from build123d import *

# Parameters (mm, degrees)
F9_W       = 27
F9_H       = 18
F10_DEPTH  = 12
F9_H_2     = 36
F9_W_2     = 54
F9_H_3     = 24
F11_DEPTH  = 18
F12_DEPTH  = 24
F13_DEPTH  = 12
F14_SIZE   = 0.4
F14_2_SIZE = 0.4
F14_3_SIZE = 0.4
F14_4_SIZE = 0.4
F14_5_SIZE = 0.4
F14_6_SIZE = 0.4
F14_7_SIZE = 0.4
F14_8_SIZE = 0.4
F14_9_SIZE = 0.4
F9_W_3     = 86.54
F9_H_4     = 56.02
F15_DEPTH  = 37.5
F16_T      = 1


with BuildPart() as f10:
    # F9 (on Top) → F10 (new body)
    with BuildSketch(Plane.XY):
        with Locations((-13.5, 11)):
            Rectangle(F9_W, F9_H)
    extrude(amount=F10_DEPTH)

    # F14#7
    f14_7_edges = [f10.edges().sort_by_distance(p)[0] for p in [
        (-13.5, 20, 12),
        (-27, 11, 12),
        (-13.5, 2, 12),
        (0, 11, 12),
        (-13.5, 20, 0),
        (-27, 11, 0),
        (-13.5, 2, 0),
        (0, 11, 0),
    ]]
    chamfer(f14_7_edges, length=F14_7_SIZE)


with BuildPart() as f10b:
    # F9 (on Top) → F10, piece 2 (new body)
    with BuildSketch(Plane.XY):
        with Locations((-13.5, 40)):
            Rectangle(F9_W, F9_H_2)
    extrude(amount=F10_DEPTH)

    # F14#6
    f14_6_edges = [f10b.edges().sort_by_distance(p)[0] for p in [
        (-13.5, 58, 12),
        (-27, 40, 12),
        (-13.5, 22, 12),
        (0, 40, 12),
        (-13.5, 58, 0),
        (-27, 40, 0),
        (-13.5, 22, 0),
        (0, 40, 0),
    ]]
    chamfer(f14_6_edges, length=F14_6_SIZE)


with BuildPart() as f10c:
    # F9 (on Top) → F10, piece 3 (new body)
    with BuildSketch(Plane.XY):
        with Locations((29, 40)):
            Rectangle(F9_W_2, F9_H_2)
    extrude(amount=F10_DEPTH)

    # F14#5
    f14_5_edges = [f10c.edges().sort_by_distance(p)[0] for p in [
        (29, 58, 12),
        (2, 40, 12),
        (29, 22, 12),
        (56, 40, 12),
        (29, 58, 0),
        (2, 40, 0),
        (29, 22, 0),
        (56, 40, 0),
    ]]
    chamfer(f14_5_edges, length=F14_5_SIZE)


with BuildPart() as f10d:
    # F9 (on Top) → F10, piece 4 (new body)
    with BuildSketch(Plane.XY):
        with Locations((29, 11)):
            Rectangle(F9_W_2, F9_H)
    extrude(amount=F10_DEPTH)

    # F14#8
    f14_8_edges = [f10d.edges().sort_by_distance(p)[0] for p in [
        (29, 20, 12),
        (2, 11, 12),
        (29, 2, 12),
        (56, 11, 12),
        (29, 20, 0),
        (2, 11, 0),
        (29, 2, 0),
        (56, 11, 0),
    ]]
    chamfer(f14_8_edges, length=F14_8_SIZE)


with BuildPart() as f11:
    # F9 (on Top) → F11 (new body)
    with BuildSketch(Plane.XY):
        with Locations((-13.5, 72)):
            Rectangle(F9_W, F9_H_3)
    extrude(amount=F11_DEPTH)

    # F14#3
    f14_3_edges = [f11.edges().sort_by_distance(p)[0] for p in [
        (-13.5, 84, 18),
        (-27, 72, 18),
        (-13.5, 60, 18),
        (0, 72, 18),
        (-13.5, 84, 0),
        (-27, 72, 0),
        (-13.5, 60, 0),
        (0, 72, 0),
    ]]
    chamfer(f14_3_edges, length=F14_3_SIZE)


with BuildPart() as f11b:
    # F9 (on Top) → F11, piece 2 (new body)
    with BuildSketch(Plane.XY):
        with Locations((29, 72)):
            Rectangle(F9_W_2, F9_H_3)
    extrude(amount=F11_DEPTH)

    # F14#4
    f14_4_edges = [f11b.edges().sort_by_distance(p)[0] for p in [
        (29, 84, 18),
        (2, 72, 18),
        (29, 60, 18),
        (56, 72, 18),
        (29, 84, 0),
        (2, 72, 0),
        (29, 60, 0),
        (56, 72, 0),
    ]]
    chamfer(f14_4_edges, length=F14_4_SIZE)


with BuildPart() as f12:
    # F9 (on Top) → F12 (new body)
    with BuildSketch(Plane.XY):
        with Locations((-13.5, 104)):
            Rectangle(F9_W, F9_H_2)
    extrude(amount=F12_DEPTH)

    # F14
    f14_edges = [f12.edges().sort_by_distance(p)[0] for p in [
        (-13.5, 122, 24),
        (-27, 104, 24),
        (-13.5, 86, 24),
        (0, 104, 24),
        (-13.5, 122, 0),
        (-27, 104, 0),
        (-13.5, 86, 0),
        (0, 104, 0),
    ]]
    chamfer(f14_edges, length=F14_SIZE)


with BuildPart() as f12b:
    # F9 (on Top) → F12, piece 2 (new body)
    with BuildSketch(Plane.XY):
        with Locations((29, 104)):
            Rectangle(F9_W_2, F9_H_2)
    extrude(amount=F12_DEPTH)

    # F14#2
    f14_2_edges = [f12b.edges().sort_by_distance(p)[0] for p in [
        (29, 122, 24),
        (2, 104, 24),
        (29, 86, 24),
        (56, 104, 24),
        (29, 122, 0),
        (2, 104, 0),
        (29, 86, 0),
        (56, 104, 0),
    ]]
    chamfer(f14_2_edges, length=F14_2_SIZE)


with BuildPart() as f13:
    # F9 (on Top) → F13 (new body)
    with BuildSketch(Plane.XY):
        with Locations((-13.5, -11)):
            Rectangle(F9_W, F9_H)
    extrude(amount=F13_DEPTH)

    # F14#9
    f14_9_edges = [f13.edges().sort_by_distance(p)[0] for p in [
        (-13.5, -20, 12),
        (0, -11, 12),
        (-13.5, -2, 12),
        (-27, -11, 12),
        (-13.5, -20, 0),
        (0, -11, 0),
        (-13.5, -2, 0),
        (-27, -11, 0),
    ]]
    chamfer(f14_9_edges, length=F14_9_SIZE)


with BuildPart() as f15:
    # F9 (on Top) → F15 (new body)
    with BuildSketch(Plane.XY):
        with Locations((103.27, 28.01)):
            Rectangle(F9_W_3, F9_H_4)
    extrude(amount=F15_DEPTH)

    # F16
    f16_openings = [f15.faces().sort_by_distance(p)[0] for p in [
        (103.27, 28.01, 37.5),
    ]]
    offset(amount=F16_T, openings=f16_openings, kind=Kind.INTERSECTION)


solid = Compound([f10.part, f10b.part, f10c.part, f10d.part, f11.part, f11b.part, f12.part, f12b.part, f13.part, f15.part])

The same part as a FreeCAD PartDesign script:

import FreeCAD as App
import Part
import Sketcher
from FreeCAD import Vector
Q = App.Units.Quantity


def edges_at(feature, points):
    """Names of the edges that pass closest to the given points."""
    edges = feature.Shape.Edges
    near = lambda p: min(range(len(edges)), key=lambda i: edges[i].distToShape(Part.Vertex(*p))[0])
    return sorted({f"Edge{near(p) + 1}" for p in points})


def faces_at(feature, points):
    """Names of the faces that lie closest to the given points."""
    faces = feature.Shape.Faces
    near = lambda p: min(range(len(faces)), key=lambda i: faces[i].distToShape(Part.Vertex(*p))[0])
    return sorted({f"Face{near(p) + 1}" for p in points})


def add_polygon(sketch, points):
    """Adds a closed chain of lines whose ends are joined by coincident constraints."""
    first, n = sketch.GeometryCount, len(points)
    for a, b in zip(points, points[1:] + points[:1]):
        sketch.addGeometry(Part.LineSegment(App.Vector(*a, 0), App.Vector(*b, 0)), False)
    for i in range(n):
        sketch.addConstraint(Sketcher.Constraint("Coincident", first + i, 2, first + (i + 1) % n, 1))

doc = App.newDocument("Part")
body = doc.addObject("PartDesign::Body", "Body")

# Sketch on XY plane
sketch1 = body.newObject("Sketcher::SketchObject", "Sketch")
sketch1.AttachmentSupport = (doc.getObject("XY_Plane"), [""])
sketch1.MapMode = "FlatFace"
add_polygon(sketch1, [(-27, 20), (-27, 2), (0, 2), (0, 20)])  # lines 0-3
sketch1.addConstraint([
    Sketcher.Constraint("Vertical", 0),
    Sketcher.Constraint("Horizontal", 1),
    Sketcher.Constraint("Vertical", 2),
    Sketcher.Constraint("Horizontal", 3),
    Sketcher.Constraint("PointOnObject", 1, 2, -2),
    Sketcher.Constraint("DistanceX", 1, 1, 1, 2, Q("27 mm")),
    Sketcher.Constraint("DistanceY", 0, 2, 0, 1, Q("18 mm")),
    Sketcher.Constraint("DistanceY", -1, 1, 0, 2, Q("2 mm")),
])
pad1 = body.newObject("PartDesign::Pad", "Pad")
pad1.Profile = sketch1
pad1.Length = 12
doc.recompute()

chamfer = body.newObject("PartDesign::Chamfer", "Chamfer")
chamfer.Base = (pad1, edges_at(pad1, [
    (-13.5, 20, 12),
    (-27, 11, 12),
    (-13.5, 2, 12),
    (0, 11, 12),
    (-13.5, 20, 0),
    (-27, 11, 0),
    (-13.5, 2, 0),
    (0, 11, 0),
]))
chamfer.Size = 0.4
body2 = doc.addObject("PartDesign::Body", "Body001")

# Sketch on XY plane
sketch2 = body2.newObject("Sketcher::SketchObject", "Sketch001")
sketch2.AttachmentSupport = (doc.getObject("XY_Plane001"), [""])
sketch2.MapMode = "FlatFace"
add_polygon(sketch2, [(-27, 58), (-27, 22), (0, 22), (0, 58)])  # lines 0-3
sketch2.addConstraint([
    Sketcher.Constraint("Vertical", 0),
    Sketcher.Constraint("Horizontal", 1),
    Sketcher.Constraint("Vertical", 2),
    Sketcher.Constraint("Horizontal", 3),
    Sketcher.Constraint("PointOnObject", 1, 2, -2),
    Sketcher.Constraint("DistanceX", 1, 1, 1, 2, Q("27 mm")),
    Sketcher.Constraint("DistanceY", 0, 2, 0, 1, Q("36 mm")),
    Sketcher.Constraint("DistanceY", -1, 1, 0, 2, Q("22 mm")),
])
pad2 = body2.newObject("PartDesign::Pad", "Pad001")
pad2.Profile = sketch2
pad2.Length = 12
doc.recompute()

chamfer2 = body2.newObject("PartDesign::Chamfer", "Chamfer001")
chamfer2.Base = (pad2, edges_at(pad2, [
    (-13.5, 58, 12),
    (-27, 40, 12),
    (-13.5, 22, 12),
    (0, 40, 12),
    (-13.5, 58, 0),
    (-27, 40, 0),
    (-13.5, 22, 0),
    (0, 40, 0),
]))
chamfer2.Size = 0.4
body3 = doc.addObject("PartDesign::Body", "Body002")

# Sketch on XY plane
sketch3 = body3.newObject("Sketcher::SketchObject", "Sketch002")
sketch3.AttachmentSupport = (doc.getObject("XY_Plane002"), [""])
sketch3.MapMode = "FlatFace"
add_polygon(sketch3, [(2, 58), (2, 22), (56, 22), (56, 58)])  # lines 0-3
sketch3.addConstraint([
    Sketcher.Constraint("Vertical", 0),
    Sketcher.Constraint("Horizontal", 1),
    Sketcher.Constraint("Vertical", 2),
    Sketcher.Constraint("Horizontal", 3),
    Sketcher.Constraint("DistanceX", 1, 1, 1, 2, Q("54 mm")),
    Sketcher.Constraint("DistanceY", 0, 2, 0, 1, Q("36 mm")),
    Sketcher.Constraint("DistanceX", -1, 1, 0, 2, Q("2 mm")),
    Sketcher.Constraint("DistanceY", -1, 1, 0, 2, Q("22 mm")),
])
pad3 = body3.newObject("PartDesign::Pad", "Pad002")
pad3.Profile = sketch3
pad3.Length = 12
doc.recompute()

chamfer3 = body3.newObject("PartDesign::Chamfer", "Chamfer002")
chamfer3.Base = (pad3, edges_at(pad3, [
    (29, 58, 12),
    (2, 40, 12),
    (29, 22, 12),
    (56, 40, 12),
    (29, 58, 0),
    (2, 40, 0),
    (29, 22, 0),
    (56, 40, 0),
]))
chamfer3.Size = 0.4
body4 = doc.addObject("PartDesign::Body", "Body003")

# Sketch on XY plane
sketch4 = body4.newObject("Sketcher::SketchObject", "Sketch003")
sketch4.AttachmentSupport = (doc.getObject("XY_Plane003"), [""])
sketch4.MapMode = "FlatFace"
add_polygon(sketch4, [(2, 20), (2, 2), (56, 2), (56, 20)])  # lines 0-3
sketch4.addConstraint([
    Sketcher.Constraint("Vertical", 0),
    Sketcher.Constraint("Horizontal", 1),
    Sketcher.Constraint("Vertical", 2),
    Sketcher.Constraint("Horizontal", 3),
    Sketcher.Constraint("DistanceX", 1, 1, 1, 2, Q("54 mm")),
    Sketcher.Constraint("DistanceY", 0, 2, 0, 1, Q("18 mm")),
    Sketcher.Constraint("DistanceX", -1, 1, 0, 2, Q("2 mm")),
    Sketcher.Constraint("DistanceY", -1, 1, 0, 2, Q("2 mm")),
])
pad4 = body4.newObject("PartDesign::Pad", "Pad003")
pad4.Profile = sketch4
pad4.Length = 12
doc.recompute()

chamfer4 = body4.newObject("PartDesign::Chamfer", "Chamfer003")
chamfer4.Base = (pad4, edges_at(pad4, [
    (29, 20, 12),
    (2, 11, 12),
    (29, 2, 12),
    (56, 11, 12),
    (29, 20, 0),
    (2, 11, 0),
    (29, 2, 0),
    (56, 11, 0),
]))
chamfer4.Size = 0.4
body5 = doc.addObject("PartDesign::Body", "Body004")

# Sketch on XY plane
sketch5 = body5.newObject("Sketcher::SketchObject", "Sketch004")
sketch5.AttachmentSupport = (doc.getObject("XY_Plane004"), [""])
sketch5.MapMode = "FlatFace"
add_polygon(sketch5, [(-27, 84), (-27, 60), (0, 60), (0, 84)])  # lines 0-3
sketch5.addConstraint([
    Sketcher.Constraint("Vertical", 0),
    Sketcher.Constraint("Horizontal", 1),
    Sketcher.Constraint("Vertical", 2),
    Sketcher.Constraint("Horizontal", 3),
    Sketcher.Constraint("PointOnObject", 1, 2, -2),
    Sketcher.Constraint("DistanceX", 1, 1, 1, 2, Q("27 mm")),
    Sketcher.Constraint("DistanceY", 0, 2, 0, 1, Q("24 mm")),
    Sketcher.Constraint("DistanceY", -1, 1, 0, 2, Q("60 mm")),
])
pad5 = body5.newObject("PartDesign::Pad", "Pad004")
pad5.Profile = sketch5
pad5.Length = 18
doc.recompute()

chamfer5 = body5.newObject("PartDesign::Chamfer", "Chamfer004")
chamfer5.Base = (pad5, edges_at(pad5, [
    (-13.5, 84, 18),
    (-27, 72, 18),
    (-13.5, 60, 18),
    (0, 72, 18),
    (-13.5, 84, 0),
    (-27, 72, 0),
    (-13.5, 60, 0),
    (0, 72, 0),
]))
chamfer5.Size = 0.4
body6 = doc.addObject("PartDesign::Body", "Body005")

# Sketch on XY plane
sketch6 = body6.newObject("Sketcher::SketchObject", "Sketch005")
sketch6.AttachmentSupport = (doc.getObject("XY_Plane005"), [""])
sketch6.MapMode = "FlatFace"
add_polygon(sketch6, [(2, 84), (2, 60), (56, 60), (56, 84)])  # lines 0-3
sketch6.addConstraint([
    Sketcher.Constraint("Vertical", 0),
    Sketcher.Constraint("Horizontal", 1),
    Sketcher.Constraint("Vertical", 2),
    Sketcher.Constraint("Horizontal", 3),
    Sketcher.Constraint("DistanceX", 1, 1, 1, 2, Q("54 mm")),
    Sketcher.Constraint("DistanceY", 0, 2, 0, 1, Q("24 mm")),
    Sketcher.Constraint("DistanceX", -1, 1, 0, 2, Q("2 mm")),
    Sketcher.Constraint("DistanceY", -1, 1, 0, 2, Q("60 mm")),
])
pad6 = body6.newObject("PartDesign::Pad", "Pad005")
pad6.Profile = sketch6
pad6.Length = 18
doc.recompute()

chamfer6 = body6.newObject("PartDesign::Chamfer", "Chamfer005")
chamfer6.Base = (pad6, edges_at(pad6, [
    (29, 84, 18),
    (2, 72, 18),
    (29, 60, 18),
    (56, 72, 18),
    (29, 84, 0),
    (2, 72, 0),
    (29, 60, 0),
    (56, 72, 0),
]))
chamfer6.Size = 0.4
body7 = doc.addObject("PartDesign::Body", "Body006")

# Sketch on XY plane
sketch7 = body7.newObject("Sketcher::SketchObject", "Sketch006")
sketch7.AttachmentSupport = (doc.getObject("XY_Plane006"), [""])
sketch7.MapMode = "FlatFace"
add_polygon(sketch7, [(-27, 122), (-27, 86), (0, 86), (0, 122)])  # lines 0-3
sketch7.addConstraint([
    Sketcher.Constraint("Vertical", 0),
    Sketcher.Constraint("Horizontal", 1),
    Sketcher.Constraint("Vertical", 2),
    Sketcher.Constraint("Horizontal", 3),
    Sketcher.Constraint("PointOnObject", 1, 2, -2),
    Sketcher.Constraint("DistanceX", 1, 1, 1, 2, Q("27 mm")),
    Sketcher.Constraint("DistanceY", 0, 2, 0, 1, Q("36 mm")),
    Sketcher.Constraint("DistanceY", -1, 1, 0, 2, Q("86 mm")),
])
pad7 = body7.newObject("PartDesign::Pad", "Pad006")
pad7.Profile = sketch7
pad7.Length = 24
doc.recompute()

chamfer7 = body7.newObject("PartDesign::Chamfer", "Chamfer006")
chamfer7.Base = (pad7, edges_at(pad7, [
    (-13.5, 122, 24),
    (-27, 104, 24),
    (-13.5, 86, 24),
    (0, 104, 24),
    (-13.5, 122, 0),
    (-27, 104, 0),
    (-13.5, 86, 0),
    (0, 104, 0),
]))
chamfer7.Size = 0.4
body8 = doc.addObject("PartDesign::Body", "Body007")

# Sketch on XY plane
sketch8 = body8.newObject("Sketcher::SketchObject", "Sketch007")
sketch8.AttachmentSupport = (doc.getObject("XY_Plane007"), [""])
sketch8.MapMode = "FlatFace"
add_polygon(sketch8, [(2, 122), (2, 86), (56, 86), (56, 122)])  # lines 0-3
sketch8.addConstraint([
    Sketcher.Constraint("Vertical", 0),
    Sketcher.Constraint("Horizontal", 1),
    Sketcher.Constraint("Vertical", 2),
    Sketcher.Constraint("Horizontal", 3),
    Sketcher.Constraint("DistanceX", 1, 1, 1, 2, Q("54 mm")),
    Sketcher.Constraint("DistanceY", 0, 2, 0, 1, Q("36 mm")),
    Sketcher.Constraint("DistanceX", -1, 1, 0, 2, Q("2 mm")),
    Sketcher.Constraint("DistanceY", -1, 1, 0, 2, Q("86 mm")),
])
pad8 = body8.newObject("PartDesign::Pad", "Pad007")
pad8.Profile = sketch8
pad8.Length = 24
doc.recompute()

chamfer8 = body8.newObject("PartDesign::Chamfer", "Chamfer007")
chamfer8.Base = (pad8, edges_at(pad8, [
    (29, 122, 24),
    (2, 104, 24),
    (29, 86, 24),
    (56, 104, 24),
    (29, 122, 0),
    (2, 104, 0),
    (29, 86, 0),
    (56, 104, 0),
]))
chamfer8.Size = 0.4
body9 = doc.addObject("PartDesign::Body", "Body008")

# Sketch on XY plane
sketch9 = body9.newObject("Sketcher::SketchObject", "Sketch008")
sketch9.AttachmentSupport = (doc.getObject("XY_Plane008"), [""])
sketch9.MapMode = "FlatFace"
add_polygon(sketch9, [(-27, -2), (-27, -20), (0, -20), (0, -2)])  # lines 0-3
sketch9.addConstraint([
    Sketcher.Constraint("Vertical", 0),
    Sketcher.Constraint("Horizontal", 1),
    Sketcher.Constraint("Vertical", 2),
    Sketcher.Constraint("Horizontal", 3),
    Sketcher.Constraint("PointOnObject", 1, 2, -2),
    Sketcher.Constraint("DistanceX", 1, 1, 1, 2, Q("27 mm")),
    Sketcher.Constraint("DistanceY", 0, 2, 0, 1, Q("18 mm")),
    Sketcher.Constraint("DistanceY", 0, 2, -1, 1, Q("20 mm")),
])
pad9 = body9.newObject("PartDesign::Pad", "Pad008")
pad9.Profile = sketch9
pad9.Length = 12
doc.recompute()

chamfer9 = body9.newObject("PartDesign::Chamfer", "Chamfer008")
chamfer9.Base = (pad9, edges_at(pad9, [
    (-13.5, -20, 12),
    (0, -11, 12),
    (-13.5, -2, 12),
    (-27, -11, 12),
    (-13.5, -20, 0),
    (0, -11, 0),
    (-13.5, -2, 0),
    (-27, -11, 0),
]))
chamfer9.Size = 0.4
body10 = doc.addObject("PartDesign::Body", "Body009")

# Sketch on XY plane
sketch10 = body10.newObject("Sketcher::SketchObject", "Sketch009")
sketch10.AttachmentSupport = (doc.getObject("XY_Plane009"), [""])
sketch10.MapMode = "FlatFace"
add_polygon(sketch10, [(60, 56.02), (60, 0), (146.54, 0), (146.54, 56.02)])  # lines 0-3
sketch10.addConstraint([
    Sketcher.Constraint("Vertical", 0),
    Sketcher.Constraint("Horizontal", 1),
    Sketcher.Constraint("Vertical", 2),
    Sketcher.Constraint("Horizontal", 3),
    Sketcher.Constraint("PointOnObject", 0, 2, -1),
    Sketcher.Constraint("DistanceX", -1, 1, 0, 2, Q("60 mm")),
    Sketcher.Constraint("DistanceX", 1, 1, 1, 2, Q("86.54 mm")),
    Sketcher.Constraint("DistanceY", 0, 2, 0, 1, Q("56.02 mm")),
])
pad10 = body10.newObject("PartDesign::Pad", "Pad009")
pad10.Profile = sketch10
pad10.Length = 37.5
doc.recompute()

thickness = body10.newObject("PartDesign::Thickness", "Thickness")
thickness.Base = (pad10, faces_at(pad10, [(103.27, 28.01, 37.5)]))
thickness.Value = 1
thickness.Reversed = False
thickness.Join = "Intersection"

doc.recompute()
